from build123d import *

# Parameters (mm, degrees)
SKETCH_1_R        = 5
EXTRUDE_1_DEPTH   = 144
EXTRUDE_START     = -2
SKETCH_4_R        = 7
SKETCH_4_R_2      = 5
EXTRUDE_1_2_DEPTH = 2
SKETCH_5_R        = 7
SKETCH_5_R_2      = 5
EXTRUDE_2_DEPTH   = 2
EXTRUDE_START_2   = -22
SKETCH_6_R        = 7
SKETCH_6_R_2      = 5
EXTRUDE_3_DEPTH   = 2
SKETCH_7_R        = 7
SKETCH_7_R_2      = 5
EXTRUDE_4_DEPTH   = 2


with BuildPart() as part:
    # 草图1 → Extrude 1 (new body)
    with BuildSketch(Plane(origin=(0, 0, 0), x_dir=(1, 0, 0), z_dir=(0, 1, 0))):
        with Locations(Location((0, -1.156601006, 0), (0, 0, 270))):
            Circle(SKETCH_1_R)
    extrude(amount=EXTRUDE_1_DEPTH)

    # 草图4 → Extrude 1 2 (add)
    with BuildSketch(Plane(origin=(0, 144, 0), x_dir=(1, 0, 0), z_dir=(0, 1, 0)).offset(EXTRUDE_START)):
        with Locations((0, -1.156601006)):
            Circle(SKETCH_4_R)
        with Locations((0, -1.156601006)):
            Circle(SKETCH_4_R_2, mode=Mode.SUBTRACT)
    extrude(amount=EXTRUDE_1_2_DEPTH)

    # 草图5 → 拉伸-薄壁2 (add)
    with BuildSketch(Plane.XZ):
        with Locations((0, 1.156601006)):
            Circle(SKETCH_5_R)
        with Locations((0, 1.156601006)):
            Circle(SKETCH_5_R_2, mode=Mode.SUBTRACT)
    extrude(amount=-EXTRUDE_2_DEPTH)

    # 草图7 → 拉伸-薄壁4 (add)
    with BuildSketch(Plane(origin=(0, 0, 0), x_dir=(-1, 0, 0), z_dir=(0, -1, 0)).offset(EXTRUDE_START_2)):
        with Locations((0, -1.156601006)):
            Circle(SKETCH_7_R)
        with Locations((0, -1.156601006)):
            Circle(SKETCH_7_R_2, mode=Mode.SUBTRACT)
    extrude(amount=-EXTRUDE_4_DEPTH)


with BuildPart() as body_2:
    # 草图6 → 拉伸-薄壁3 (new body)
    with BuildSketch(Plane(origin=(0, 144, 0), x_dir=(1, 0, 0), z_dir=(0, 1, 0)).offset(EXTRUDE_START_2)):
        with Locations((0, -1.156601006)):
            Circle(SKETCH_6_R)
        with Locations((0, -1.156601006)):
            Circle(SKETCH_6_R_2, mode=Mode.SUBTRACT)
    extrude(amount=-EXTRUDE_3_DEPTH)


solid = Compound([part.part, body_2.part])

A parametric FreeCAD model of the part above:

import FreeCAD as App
import Part
import Sketcher

V = App.Vector

doc = App.newDocument("Part")
body = doc.addObject("PartDesign::Body", "Body")

# Sketch on XZ plane
sketch1 = body.newObject("Sketcher::SketchObject", "Sketch")
sketch1.AttachmentSupport = (doc.getObject("XZ_Plane"), [""])
sketch1.MapMode = "FlatFace"
sketch1.addGeometry(Part.Circle(V(0, 1.156601, 0), V(0, 0, 1), 5), False)
sketch1.addConstraint(Sketcher.Constraint("PointOnObject", 0, 3, -2))
sketch1.addConstraint(Sketcher.Constraint("Diameter", 0, 10.0))
sketch1.addConstraint(Sketcher.Constraint("DistanceY", -1, 1, 0, 3, 1.156601))
pad1 = body.newObject("PartDesign::Pad", "Pad")
pad1.Profile = sketch1
pad1.Length = 144
pad1.Reversed = True

# Sketch on XZ plane
sketch2 = body.newObject("Sketcher::SketchObject", "Sketch001")
sketch2.AttachmentSupport = (doc.getObject("XZ_Plane"), [""])
sketch2.MapMode = "FlatFace"
sketch2.AttachmentOffset = App.Placement(V(0, 0, -142), App.Rotation())
sketch2.addGeometry(Part.Circle(V(0, 1.156601, 0), V(0, 0, 1), 7), False)
sketch2.addGeometry(Part.Circle(V(0, 1.156601, 0), V(0, 0, 1), 5), False)
sketch2.addConstraint(Sketcher.Constraint("Coincident", 1, 3, 0, 3))
sketch2.addConstraint(Sketcher.Constraint("PointOnObject", 0, 3, -2))
sketch2.addConstraint(Sketcher.Constraint("Diameter", 0, 14.0))
sketch2.addConstraint(Sketcher.Constraint("Diameter", 1, 10.0))
sketch2.addConstraint(Sketcher.Constraint("DistanceY", -1, 1, 0, 3, 1.156601))
pad2 = body.newObject("PartDesign::Pad", "Pad001")
pad2.Profile = sketch2
pad2.Length = 2
pad2.Reversed = True

# Sketch on XZ plane
sketch3 = body.newObject("Sketcher::SketchObject", "Sketch002")
sketch3.AttachmentSupport = (doc.getObject("XZ_Plane"), [""])
sketch3.MapMode = "FlatFace"
sketch3.addGeometry(Part.Circle(V(0, 1.156601, 0), V(0, 0, 1), 7), False)
sketch3.addGeometry(Part.Circle(V(0, 1.156601, 0), V(0, 0, 1), 5), False)
sketch3.addConstraint(Sketcher.Constraint("Coincident", 1, 3, 0, 3))
sketch3.addConstraint(Sketcher.Constraint("PointOnObject", 0, 3, -2))
sketch3.addConstraint(Sketcher.Constraint("Diameter", 0, 14.0))
sketch3.addConstraint(Sketcher.Constraint("Diameter", 1, 10.0))
sketch3.addConstraint(Sketcher.Constraint("DistanceY", -1, 1, 0, 3, 1.156601))
pad3 = body.newObject("PartDesign::Pad", "Pad002")
pad3.Profile = sketch3
pad3.Length = 2
pad3.Reversed = True

# Sketch on XZ plane
sketch4 = body.newObject("Sketcher::SketchObject", "Sketch003")
sketch4.AttachmentSupport = (doc.getObject("XZ_Plane"), [""])
sketch4.MapMode = "FlatFace"
sketch4.AttachmentOffset = App.Placement(V(0, 0, -22), App.Rotation())
sketch4.addGeometry(Part.Circle(V(0, 1.156601, 0), V(0, 0, 1), 7), False)
sketch4.addGeometry(Part.Circle(V(0, 1.156601, 0), V(0, 0, 1), 5), False)
sketch4.addConstraint(Sketcher.Constraint("Coincident", 1, 3, 0, 3))
sketch4.addConstraint(Sketcher.Constraint("PointOnObject", 0, 3, -2))
sketch4.addConstraint(Sketcher.Constraint("Diameter", 0, 14.0))
sketch4.addConstraint(Sketcher.Constraint("Diameter", 1, 10.0))
sketch4.addConstraint(Sketcher.Constraint("DistanceY", -1, 1, 0, 3, 1.156601))
pad4 = body.newObject("PartDesign::Pad", "Pad003")
pad4.Profile = sketch4
pad4.Length = 2
pad4.Reversed = True
body2 = doc.addObject("PartDesign::Body", "Body001")

# Sketch on XZ plane
sketch5 = body2.newObject("Sketcher::SketchObject", "Sketch004")
sketch5.AttachmentSupport = (doc.getObject("XZ_Plane001"), [""])
sketch5.MapMode = "FlatFace"
sketch5.AttachmentOffset = App.Placement(V(0, 0, -122), App.Rotation())
sketch5.addGeometry(Part.Circle(V(0, 1.156601, 0), V(0, 0, 1), 7), False)
sketch5.addGeometry(Part.Circle(V(0, 1.156601, 0), V(0, 0, 1), 5), False)
sketch5.addConstraint(Sketcher.Constraint("Coincident", 1, 3, 0, 3))
sketch5.addConstraint(Sketcher.Constraint("PointOnObject", 0, 3, -2))
sketch5.addConstraint(Sketcher.Constraint("Diameter", 0, 14.0))
sketch5.addConstraint(Sketcher.Constraint("Diameter", 1, 10.0))
sketch5.addConstraint(Sketcher.Constraint("DistanceY", -1, 1, 0, 3, 1.156601))
pad5 = body2.newObject("PartDesign::Pad", "Pad004")
pad5.Profile = sketch5
pad5.Length = 2

doc.recompute()
